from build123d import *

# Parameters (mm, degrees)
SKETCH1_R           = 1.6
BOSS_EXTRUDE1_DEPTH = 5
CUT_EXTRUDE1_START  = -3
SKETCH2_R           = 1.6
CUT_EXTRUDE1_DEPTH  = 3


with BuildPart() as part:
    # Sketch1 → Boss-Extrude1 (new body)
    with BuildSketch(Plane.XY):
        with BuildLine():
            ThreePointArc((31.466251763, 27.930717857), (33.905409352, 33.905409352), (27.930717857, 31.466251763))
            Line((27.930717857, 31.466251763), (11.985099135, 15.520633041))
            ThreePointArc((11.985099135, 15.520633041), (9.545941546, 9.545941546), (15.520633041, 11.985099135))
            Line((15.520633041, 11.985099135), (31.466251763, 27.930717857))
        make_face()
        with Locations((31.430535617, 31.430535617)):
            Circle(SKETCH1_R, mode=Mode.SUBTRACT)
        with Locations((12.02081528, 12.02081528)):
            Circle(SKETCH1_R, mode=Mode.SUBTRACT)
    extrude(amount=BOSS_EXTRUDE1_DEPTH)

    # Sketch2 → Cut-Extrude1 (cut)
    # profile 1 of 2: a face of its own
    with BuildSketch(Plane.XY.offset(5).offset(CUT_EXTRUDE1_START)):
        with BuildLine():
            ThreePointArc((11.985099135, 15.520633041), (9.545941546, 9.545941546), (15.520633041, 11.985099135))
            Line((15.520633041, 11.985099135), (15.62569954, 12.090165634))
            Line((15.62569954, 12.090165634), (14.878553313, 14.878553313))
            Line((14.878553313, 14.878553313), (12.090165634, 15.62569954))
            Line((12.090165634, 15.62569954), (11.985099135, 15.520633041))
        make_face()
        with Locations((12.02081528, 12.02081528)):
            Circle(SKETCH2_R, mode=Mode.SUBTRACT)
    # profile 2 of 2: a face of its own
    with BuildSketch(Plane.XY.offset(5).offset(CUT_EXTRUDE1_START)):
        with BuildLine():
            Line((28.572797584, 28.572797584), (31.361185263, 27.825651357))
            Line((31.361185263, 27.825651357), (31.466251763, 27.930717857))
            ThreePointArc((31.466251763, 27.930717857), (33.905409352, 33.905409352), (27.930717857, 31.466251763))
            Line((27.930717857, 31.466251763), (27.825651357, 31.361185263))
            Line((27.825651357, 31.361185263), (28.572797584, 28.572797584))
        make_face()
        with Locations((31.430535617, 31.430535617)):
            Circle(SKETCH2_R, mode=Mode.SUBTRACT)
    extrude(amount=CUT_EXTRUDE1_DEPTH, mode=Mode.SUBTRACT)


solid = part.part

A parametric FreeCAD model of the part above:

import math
import FreeCAD as App
import Part
import Sketcher
Q = App.Units.Quantity

doc = App.newDocument("Part")
body = doc.addObject("PartDesign::Body", "Body")

# Sketch on XY plane
sketch1 = body.newObject("Sketcher::SketchObject", "Sketch")
sketch1.AttachmentSupport = (doc.getObject("XY_Plane"), [""])
sketch1.MapMode = "FlatFace"
sketch1.addGeometry([
    Part.ArcOfCircle(Part.Circle(App.Vector(31.430536, 31.430536, 0), App.Vector(0, 0, 1), 3.5), math.radians(-89.415309), math.radians(179.415309)),  # 0
    Part.LineSegment(App.Vector(27.930718, 31.466252, 0), App.Vector(11.985099, 15.520633, 0)),  # 1
    Part.ArcOfCircle(Part.Circle(App.Vector(12.020815, 12.020815, 0), App.Vector(0, 0, 1), 3.5), math.radians(90.584691), math.radians(359.415309)),  # 2
    Part.LineSegment(App.Vector(15.520633, 11.985099, 0), App.Vector(31.466252, 27.930718, 0)),  # 3
    Part.Circle(App.Vector(12.020815, 12.020815, 0), App.Vector(0, 0, 1), 1.6),  # 4
    Part.Circle(App.Vector(31.430536, 31.430536, 0), App.Vector(0, 0, 1), 1.6),  # 5
], False)
sketch1.addConstraint([
    Sketcher.Constraint("Coincident", 0, 2, 1, 1),
    Sketcher.Constraint("Coincident", 1, 2, 2, 1),
    Sketcher.Constraint("Coincident", 2, 2, 3, 1),
    Sketcher.Constraint("Coincident", 3, 2, 0, 1),
    Sketcher.Constraint("Coincident", 4, 3, 2, 3),
    Sketcher.Constraint("Coincident", 5, 3, 0, 3),
    Sketcher.Constraint("Equal", 0, 2),
    Sketcher.Constraint("Equal", 4, 5),
    Sketcher.Constraint("Parallel", 1, 3),
    Sketcher.Constraint("Equal", 1, 3),
    Sketcher.Constraint("Diameter", 4, Q("3.2 mm")),
    Sketcher.Constraint("Radius", 0, Q("3.5 mm")),
    Sketcher.Constraint("Angle", 1, Q("-135 deg")),
    Sketcher.Constraint("DistanceX", -1, 1, 1, 2, Q("11.985099 mm")),
    Sketcher.Constraint("DistanceY", -1, 1, 2, 2, Q("11.985099 mm")),
    Sketcher.Constraint("Distance", 1, Q("22.55051 mm")),
    Sketcher.Constraint("DistanceY", -1, 1, 0, 2, Q("31.466252 mm")),
    Sketcher.Constraint("DistanceX", -1, 1, 3, 2, Q("31.466252 mm")),
])
pad1 = body.newObject("PartDesign::Pad", "Pad")
pad1.Profile = sketch1
pad1.Length = 5

# Sketch on XY plane
sketch2 = body.newObject("Sketcher::SketchObject", "Sketch001")
sketch2.AttachmentSupport = (doc.getObject("XY_Plane"), [""])
sketch2.MapMode = "FlatFace"
sketch2.AttachmentOffset = App.Placement(App.Vector(0, 0, 2), App.Rotation())
sketch2.addGeometry([
    Part.ArcOfCircle(Part.Circle(App.Vector(12.020815, 12.020815, 0), App.Vector(0, 0, 1), 3.5), math.radians(90.584691), math.radians(359.415309)),  # 0
    Part.LineSegment(App.Vector(15.520633, 11.985099, 0), App.Vector(15.6257, 12.090166, 0)),  # 1
    Part.LineSegment(App.Vector(15.6257, 12.090166, 0), App.Vector(14.878553, 14.878553, 0)),  # 2
    Part.LineSegment(App.Vector(14.878553, 14.878553, 0), App.Vector(12.090166, 15.6257, 0)),  # 3
    Part.LineSegment(App.Vector(12.090166, 15.6257, 0), App.Vector(11.985099, 15.520633, 0)),  # 4
    Part.Circle(App.Vector(12.020815, 12.020815, 0), App.Vector(0, 0, 1), 1.6),  # 5
    Part.LineSegment(App.Vector(28.572798, 28.572798, 0), App.Vector(31.361185, 27.825651, 0)),  # 6
    Part.LineSegment(App.Vector(31.361185, 27.825651, 0), App.Vector(31.466252, 27.930718, 0)),  # 7
    Part.ArcOfCircle(Part.Circle(App.Vector(31.430536, 31.430536, 0), App.Vector(0, 0, 1), 3.5), math.radians(-89.415309), math.radians(179.415309)),  # 8
    Part.LineSegment(App.Vector(27.930718, 31.466252, 0), App.Vector(27.825651, 31.361185, 0)),  # 9
    Part.LineSegment(App.Vector(27.825651, 31.361185, 0), App.Vector(28.572798, 28.572798, 0)),  # 10
    Part.Circle(App.Vector(31.430536, 31.430536, 0), App.Vector(0, 0, 1), 1.6),  # 11
], False)
sketch2.addConstraint([
    Sketcher.Constraint("Coincident", 0, 2, 1, 1),
    Sketcher.Constraint("Coincident", 1, 2, 2, 1),
    Sketcher.Constraint("Coincident", 2, 2, 3, 1),
    Sketcher.Constraint("Coincident", 3, 2, 4, 1),
    Sketcher.Constraint("Coincident", 4, 2, 0, 1),
    Sketcher.Constraint("Coincident", 6, 2, 7, 1),
    Sketcher.Constraint("Coincident", 7, 2, 8, 1),
    Sketcher.Constraint("Coincident", 8, 2, 9, 1),
    Sketcher.Constraint("Coincident", 9, 2, 10, 1),
    Sketcher.Constraint("Coincident", 10, 2, 6, 1),
    Sketcher.Constraint("Coincident", 5, 3, 0, 3),
    Sketcher.Constraint("Coincident", 11, 3, 8, 3),
    Sketcher.Constraint("Equal", 0, 8),
    Sketcher.Constraint("Equal", 5, 11),
    Sketcher.Constraint("Parallel", 1, 4),
    Sketcher.Constraint("Parallel", 3, 6),
    Sketcher.Constraint("Parallel", 4, 7),
    Sketcher.Constraint("Parallel", 7, 9),
    Sketcher.Constraint("Parallel", 2, 10),
    Sketcher.Constraint("Equal", 2, 3),
    Sketcher.Constraint("Equal", 1, 4),
    Sketcher.Constraint("Equal", 3, 6),
    Sketcher.Constraint("Equal", 4, 7),
    Sketcher.Constraint("Equal", 7, 9),
    Sketcher.Constraint("Equal", 6, 10),
    Sketcher.Constraint("Diameter", 5, Q("3.2 mm")),
    Sketcher.Constraint("Radius", 0, Q("3.5 mm")),
    Sketcher.Constraint("Angle", 1, Q("45 deg")),
    Sketcher.Constraint("Angle", 2, Q("105 deg")),
    Sketcher.Constraint("Angle", 3, Q("165 deg")),
    Sketcher.Constraint("DistanceY", -1, 1, 0, 2, Q("11.985099 mm")),
    Sketcher.Constraint("DistanceX", -1, 1, 1, 2, Q("15.6257 mm")),
    Sketcher.Constraint("DistanceY", -1, 1, 3, 2, Q("15.6257 mm")),
    Sketcher.Constraint("DistanceY", 2, 2, 6, 2, Q("12.947098 mm")),
    Sketcher.Constraint("DistanceX", 2, 2, 7, 2, Q("16.587698 mm")),
    Sketcher.Constraint("Distance", 2, Q("2.886751 mm")),
])
pocket1 = body.newObject("PartDesign::Pocket", "Pocket")
pocket1.Profile = sketch2
pocket1.Length = 3
pocket1.Reversed = True

doc.recompute()
